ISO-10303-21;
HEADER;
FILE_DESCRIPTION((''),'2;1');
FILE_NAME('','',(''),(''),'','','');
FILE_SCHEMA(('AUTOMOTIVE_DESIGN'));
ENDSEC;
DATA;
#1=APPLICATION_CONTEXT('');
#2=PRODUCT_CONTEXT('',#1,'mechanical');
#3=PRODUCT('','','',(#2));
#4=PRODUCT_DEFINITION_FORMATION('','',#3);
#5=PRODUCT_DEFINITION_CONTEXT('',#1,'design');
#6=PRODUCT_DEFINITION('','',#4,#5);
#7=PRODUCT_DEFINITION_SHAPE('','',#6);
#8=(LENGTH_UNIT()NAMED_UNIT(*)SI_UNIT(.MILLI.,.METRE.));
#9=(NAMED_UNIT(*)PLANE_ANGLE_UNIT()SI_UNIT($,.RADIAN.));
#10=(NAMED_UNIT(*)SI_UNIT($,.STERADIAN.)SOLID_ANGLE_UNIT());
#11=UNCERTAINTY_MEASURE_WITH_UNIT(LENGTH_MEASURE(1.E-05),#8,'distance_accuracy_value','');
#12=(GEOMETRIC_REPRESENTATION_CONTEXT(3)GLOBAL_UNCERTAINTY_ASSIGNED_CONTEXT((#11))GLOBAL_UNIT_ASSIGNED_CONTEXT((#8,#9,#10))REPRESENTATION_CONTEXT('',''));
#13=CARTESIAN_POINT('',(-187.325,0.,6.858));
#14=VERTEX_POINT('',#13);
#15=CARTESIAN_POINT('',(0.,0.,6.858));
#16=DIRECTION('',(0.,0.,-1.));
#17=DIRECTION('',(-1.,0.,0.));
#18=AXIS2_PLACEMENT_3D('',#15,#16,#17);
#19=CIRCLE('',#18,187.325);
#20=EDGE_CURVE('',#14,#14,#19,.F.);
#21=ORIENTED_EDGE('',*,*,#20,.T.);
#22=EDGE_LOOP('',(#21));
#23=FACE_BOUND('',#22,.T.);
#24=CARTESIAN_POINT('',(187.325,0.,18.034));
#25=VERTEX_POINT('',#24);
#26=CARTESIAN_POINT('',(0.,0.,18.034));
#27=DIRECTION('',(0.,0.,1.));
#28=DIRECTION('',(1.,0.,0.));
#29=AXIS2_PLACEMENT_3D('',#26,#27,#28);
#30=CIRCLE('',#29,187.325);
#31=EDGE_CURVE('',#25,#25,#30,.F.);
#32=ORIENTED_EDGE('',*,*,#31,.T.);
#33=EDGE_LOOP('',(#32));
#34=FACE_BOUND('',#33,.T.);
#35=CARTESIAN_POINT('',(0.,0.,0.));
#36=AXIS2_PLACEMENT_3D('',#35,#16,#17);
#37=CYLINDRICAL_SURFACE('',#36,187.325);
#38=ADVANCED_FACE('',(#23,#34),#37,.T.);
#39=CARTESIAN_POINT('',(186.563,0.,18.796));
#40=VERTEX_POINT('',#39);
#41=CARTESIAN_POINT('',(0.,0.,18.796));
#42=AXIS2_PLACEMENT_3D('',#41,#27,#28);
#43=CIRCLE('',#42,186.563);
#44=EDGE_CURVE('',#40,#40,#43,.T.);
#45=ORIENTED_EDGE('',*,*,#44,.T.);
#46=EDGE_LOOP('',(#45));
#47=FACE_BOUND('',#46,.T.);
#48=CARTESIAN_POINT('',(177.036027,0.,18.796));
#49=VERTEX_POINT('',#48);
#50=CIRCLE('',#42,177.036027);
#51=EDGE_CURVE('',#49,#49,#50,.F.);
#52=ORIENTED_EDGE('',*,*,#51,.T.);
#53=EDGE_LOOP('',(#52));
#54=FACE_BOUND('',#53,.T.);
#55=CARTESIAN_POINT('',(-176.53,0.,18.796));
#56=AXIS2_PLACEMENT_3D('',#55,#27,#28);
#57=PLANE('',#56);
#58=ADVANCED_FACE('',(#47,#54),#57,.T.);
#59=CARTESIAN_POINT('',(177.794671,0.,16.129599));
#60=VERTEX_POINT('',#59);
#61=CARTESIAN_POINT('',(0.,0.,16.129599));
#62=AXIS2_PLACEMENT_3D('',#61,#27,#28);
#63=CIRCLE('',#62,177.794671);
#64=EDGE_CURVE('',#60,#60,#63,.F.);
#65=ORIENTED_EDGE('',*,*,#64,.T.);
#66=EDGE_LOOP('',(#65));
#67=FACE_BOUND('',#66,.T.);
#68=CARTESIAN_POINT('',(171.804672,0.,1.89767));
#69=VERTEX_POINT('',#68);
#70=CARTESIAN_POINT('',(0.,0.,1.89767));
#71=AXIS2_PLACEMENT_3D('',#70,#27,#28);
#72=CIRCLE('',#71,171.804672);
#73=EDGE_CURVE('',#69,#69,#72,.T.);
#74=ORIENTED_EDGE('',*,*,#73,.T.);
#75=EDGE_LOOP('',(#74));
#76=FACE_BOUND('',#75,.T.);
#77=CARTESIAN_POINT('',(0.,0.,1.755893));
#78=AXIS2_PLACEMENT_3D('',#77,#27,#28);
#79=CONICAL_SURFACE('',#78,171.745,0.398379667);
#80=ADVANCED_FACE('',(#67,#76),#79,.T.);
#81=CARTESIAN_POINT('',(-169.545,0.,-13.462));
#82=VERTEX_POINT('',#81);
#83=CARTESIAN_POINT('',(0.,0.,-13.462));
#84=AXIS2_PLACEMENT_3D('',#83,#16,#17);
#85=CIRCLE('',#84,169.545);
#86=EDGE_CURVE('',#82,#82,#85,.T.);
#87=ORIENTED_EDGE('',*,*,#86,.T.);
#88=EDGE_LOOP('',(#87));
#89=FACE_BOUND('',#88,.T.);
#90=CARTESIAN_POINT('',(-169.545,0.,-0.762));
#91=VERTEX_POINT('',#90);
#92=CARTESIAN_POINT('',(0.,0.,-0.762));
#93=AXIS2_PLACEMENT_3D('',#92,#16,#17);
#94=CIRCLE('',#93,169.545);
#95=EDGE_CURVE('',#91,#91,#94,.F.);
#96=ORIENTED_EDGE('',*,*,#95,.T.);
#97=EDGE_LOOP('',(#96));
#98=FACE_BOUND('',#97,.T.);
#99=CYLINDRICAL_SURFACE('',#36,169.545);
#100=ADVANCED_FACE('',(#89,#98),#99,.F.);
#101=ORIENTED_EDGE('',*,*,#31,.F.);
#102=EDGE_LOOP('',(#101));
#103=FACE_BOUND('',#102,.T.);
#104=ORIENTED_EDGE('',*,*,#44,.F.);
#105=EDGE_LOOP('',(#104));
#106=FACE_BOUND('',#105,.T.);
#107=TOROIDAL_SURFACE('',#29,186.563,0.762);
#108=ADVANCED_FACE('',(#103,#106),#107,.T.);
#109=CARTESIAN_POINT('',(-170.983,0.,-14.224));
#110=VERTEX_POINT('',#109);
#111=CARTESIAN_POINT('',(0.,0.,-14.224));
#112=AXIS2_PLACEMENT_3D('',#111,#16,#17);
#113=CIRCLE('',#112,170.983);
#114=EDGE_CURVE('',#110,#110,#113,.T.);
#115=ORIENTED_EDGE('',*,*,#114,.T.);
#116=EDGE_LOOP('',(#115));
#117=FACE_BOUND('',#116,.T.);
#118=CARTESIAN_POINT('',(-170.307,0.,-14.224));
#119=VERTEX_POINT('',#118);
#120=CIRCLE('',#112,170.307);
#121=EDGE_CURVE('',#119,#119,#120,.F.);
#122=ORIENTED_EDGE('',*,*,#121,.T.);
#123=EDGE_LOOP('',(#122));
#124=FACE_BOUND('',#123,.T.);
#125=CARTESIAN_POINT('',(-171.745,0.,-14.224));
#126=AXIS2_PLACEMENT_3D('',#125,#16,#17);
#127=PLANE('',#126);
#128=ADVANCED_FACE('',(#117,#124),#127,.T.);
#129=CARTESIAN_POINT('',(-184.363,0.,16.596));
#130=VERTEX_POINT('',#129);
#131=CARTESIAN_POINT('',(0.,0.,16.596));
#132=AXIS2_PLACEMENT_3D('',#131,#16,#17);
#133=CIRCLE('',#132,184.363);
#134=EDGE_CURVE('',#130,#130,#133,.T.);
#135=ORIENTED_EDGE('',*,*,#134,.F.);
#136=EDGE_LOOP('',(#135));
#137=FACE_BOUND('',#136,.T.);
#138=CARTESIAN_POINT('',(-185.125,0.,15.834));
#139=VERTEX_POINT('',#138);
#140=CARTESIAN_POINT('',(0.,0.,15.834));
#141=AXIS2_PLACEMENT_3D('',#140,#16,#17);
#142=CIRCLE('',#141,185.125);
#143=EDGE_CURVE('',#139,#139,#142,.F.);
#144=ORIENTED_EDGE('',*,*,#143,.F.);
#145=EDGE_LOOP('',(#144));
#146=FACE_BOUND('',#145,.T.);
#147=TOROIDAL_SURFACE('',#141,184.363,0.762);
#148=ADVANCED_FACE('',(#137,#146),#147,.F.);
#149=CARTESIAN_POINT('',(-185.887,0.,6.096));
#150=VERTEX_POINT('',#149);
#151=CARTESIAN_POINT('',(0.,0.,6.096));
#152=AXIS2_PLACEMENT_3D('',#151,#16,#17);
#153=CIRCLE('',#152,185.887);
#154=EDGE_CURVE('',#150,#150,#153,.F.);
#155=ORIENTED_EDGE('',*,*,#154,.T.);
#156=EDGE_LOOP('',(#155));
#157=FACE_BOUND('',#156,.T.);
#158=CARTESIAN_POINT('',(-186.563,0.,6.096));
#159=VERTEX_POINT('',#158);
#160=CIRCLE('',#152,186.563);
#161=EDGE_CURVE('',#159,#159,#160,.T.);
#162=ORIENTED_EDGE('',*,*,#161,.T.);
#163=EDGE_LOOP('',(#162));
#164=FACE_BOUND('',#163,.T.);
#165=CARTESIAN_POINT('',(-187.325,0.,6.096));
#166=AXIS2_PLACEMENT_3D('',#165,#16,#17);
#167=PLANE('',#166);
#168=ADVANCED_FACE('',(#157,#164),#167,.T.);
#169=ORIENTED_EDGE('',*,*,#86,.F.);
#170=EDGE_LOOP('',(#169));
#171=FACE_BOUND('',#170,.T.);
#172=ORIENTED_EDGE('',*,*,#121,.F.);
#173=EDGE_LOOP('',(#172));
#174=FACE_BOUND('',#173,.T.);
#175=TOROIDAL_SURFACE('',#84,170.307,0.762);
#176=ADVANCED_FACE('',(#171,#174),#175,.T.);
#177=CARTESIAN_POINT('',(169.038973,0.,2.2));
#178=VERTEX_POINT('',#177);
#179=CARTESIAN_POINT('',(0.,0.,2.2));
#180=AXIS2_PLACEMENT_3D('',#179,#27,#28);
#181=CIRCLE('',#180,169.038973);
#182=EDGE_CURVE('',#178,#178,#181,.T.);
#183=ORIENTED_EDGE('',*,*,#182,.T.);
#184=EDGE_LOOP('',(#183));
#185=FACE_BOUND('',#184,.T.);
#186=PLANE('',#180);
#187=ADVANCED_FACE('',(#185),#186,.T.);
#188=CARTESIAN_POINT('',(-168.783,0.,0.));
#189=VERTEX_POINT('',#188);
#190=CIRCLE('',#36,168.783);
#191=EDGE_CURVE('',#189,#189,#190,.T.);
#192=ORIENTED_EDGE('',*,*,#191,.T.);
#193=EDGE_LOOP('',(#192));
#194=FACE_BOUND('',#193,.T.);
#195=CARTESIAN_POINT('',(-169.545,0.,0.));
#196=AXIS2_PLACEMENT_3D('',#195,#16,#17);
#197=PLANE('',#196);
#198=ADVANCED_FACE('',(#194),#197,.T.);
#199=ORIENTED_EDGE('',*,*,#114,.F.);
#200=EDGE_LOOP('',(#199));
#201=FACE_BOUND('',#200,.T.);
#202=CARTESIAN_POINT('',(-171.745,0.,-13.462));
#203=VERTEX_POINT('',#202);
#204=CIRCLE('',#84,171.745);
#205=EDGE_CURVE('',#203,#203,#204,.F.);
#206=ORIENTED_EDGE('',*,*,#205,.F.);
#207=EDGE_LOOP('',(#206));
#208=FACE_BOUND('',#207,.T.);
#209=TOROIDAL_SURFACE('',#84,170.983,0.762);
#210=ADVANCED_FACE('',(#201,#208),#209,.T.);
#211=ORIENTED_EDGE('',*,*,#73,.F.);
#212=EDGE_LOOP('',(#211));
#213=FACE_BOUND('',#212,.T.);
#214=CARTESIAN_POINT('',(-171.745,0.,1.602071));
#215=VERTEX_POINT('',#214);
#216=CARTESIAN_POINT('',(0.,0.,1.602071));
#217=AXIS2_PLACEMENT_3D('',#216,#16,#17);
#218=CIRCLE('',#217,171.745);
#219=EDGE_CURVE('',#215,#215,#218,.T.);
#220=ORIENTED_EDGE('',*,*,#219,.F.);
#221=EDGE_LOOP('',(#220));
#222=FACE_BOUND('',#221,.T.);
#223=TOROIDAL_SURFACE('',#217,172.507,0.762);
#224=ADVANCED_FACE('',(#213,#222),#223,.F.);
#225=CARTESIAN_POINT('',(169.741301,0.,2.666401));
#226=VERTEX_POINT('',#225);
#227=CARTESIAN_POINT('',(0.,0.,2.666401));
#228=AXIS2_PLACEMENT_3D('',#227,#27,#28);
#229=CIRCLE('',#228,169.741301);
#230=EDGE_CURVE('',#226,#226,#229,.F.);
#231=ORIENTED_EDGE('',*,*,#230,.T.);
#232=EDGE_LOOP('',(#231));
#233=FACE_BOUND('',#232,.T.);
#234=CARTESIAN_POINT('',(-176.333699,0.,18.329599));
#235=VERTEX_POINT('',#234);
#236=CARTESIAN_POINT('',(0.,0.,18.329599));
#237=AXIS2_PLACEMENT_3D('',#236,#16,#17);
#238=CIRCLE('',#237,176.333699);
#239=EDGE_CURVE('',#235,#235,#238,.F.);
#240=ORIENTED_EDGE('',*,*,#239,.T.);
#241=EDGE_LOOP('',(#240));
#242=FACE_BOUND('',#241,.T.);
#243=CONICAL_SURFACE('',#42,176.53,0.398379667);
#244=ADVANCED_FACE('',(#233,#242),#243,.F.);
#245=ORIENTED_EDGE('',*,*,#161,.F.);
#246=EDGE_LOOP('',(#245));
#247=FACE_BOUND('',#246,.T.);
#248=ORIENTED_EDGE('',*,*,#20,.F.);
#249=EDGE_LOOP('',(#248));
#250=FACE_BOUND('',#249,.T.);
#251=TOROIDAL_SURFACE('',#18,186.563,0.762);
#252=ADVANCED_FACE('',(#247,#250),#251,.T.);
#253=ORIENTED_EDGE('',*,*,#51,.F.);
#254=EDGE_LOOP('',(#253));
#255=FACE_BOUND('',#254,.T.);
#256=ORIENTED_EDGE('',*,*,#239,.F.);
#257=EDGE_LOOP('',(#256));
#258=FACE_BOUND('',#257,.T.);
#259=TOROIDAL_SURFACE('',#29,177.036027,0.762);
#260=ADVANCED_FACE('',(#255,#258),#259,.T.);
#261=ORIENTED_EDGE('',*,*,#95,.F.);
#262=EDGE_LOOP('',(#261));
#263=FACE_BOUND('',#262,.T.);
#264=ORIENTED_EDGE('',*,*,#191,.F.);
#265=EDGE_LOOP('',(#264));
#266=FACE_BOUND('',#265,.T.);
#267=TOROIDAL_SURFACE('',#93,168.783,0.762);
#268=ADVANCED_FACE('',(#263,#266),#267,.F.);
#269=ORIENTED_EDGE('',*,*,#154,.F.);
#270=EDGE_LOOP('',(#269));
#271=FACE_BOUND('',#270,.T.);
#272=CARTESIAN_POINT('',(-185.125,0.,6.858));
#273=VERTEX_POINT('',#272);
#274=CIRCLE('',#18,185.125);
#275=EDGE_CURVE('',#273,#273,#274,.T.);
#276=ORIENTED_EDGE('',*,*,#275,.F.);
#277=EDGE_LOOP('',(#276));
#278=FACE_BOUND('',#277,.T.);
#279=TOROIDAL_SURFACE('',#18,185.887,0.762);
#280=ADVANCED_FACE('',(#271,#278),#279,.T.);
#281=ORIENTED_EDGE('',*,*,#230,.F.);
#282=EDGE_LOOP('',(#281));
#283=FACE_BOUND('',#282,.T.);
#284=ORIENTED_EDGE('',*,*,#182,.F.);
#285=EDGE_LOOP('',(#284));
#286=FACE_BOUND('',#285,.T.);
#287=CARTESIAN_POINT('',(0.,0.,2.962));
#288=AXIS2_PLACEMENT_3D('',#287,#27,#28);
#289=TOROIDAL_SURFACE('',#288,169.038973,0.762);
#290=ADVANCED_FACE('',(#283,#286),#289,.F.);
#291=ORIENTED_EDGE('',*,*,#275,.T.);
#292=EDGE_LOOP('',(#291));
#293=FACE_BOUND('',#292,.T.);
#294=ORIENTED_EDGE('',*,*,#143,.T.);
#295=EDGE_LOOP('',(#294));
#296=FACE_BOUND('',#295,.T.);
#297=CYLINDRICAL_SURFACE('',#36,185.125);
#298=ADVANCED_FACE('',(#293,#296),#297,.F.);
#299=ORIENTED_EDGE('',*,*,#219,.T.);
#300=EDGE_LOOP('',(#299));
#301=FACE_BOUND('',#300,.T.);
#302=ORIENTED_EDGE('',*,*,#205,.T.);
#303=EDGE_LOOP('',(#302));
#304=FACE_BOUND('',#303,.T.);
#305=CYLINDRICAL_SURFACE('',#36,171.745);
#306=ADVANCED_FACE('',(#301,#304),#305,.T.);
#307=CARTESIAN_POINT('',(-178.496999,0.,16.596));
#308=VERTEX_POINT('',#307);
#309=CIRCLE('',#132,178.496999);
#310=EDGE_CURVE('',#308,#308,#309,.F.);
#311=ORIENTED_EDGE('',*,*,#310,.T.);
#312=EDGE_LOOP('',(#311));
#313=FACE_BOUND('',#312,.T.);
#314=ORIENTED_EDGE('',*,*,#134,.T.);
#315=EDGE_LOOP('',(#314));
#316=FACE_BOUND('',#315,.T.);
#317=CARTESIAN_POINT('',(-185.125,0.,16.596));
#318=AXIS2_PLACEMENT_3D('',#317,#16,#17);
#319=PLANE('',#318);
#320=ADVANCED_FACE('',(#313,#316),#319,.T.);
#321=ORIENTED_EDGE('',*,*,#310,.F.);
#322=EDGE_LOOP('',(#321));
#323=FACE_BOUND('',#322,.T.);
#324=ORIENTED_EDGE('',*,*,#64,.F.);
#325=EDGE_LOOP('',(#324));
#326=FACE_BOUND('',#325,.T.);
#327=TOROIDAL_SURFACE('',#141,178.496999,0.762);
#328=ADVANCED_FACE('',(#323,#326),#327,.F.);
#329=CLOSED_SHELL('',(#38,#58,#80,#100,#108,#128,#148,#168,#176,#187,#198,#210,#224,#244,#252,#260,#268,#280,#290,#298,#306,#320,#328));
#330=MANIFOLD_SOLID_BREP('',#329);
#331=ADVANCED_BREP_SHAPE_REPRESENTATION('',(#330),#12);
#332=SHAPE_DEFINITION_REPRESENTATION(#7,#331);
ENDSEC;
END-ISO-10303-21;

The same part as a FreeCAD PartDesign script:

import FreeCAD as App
import Part
import Sketcher

V = App.Vector
Q = App.Units.Quantity


def edges_at(feature, points):
    """Names of the edges that pass closest to the given points."""
    edges = feature.Shape.Edges
    near = lambda p: min(range(len(edges)), key=lambda i: edges[i].distToShape(Part.Vertex(*p))[0])
    return sorted({f"Edge{near(p) + 1}" for p in points})

doc = App.newDocument("Part")
body = doc.addObject("PartDesign::Body", "Body")

sketch1 = doc.addObject("Sketcher::SketchObject", "Sketch")
body.addObject(sketch1)
sketch1.AttachmentSupport = (doc.XZ_Plane, [""])
sketch1.MapMode = "FlatFace"
sketch1.addGeometry([
    Part.LineSegment(V(-169.5, 2.2, 0), V(0, 2.2, 0)),
    Part.LineSegment(V(0, 2.2, 0), V(0, 0, 0)),
    Part.LineSegment(V(0, 0, 0), V(-169.5, 0, 0)),
    Part.LineSegment(V(-169.5, 0, 0), V(-169.5, -14.2, 0)),
    Part.LineSegment(V(-169.5, -14.2, 0), V(-171.7, -14.2, 0)),
    Part.LineSegment(V(-171.7, -14.2, 0), V(-171.7, 1.8, 0)),
    Part.LineSegment(V(-171.7, 1.8, 0), V(-178, 16.6, 0)),
    Part.LineSegment(V(-178, 16.6, 0), V(-185.1, 16.6, 0)),
    Part.LineSegment(V(-185.1, 16.6, 0), V(-185.1, 6.1, 0)),
    Part.LineSegment(V(-185.1, 6.1, 0), V(-187.3, 6.1, 0)),
    Part.LineSegment(V(-187.3, 6.1, 0), V(-187.3, 18.8, 0)),
    Part.LineSegment(V(-187.3, 18.8, 0), V(-176.5, 18.8, 0)),
    Part.LineSegment(V(-176.5, 18.8, 0), V(-169.5, 2.2, 0)),
], False)
sketch1.addConstraint([
    Sketcher.Constraint("Coincident", 0, 2, 1, 1),
    Sketcher.Constraint("Coincident", 1, 2, 2, 1),
    Sketcher.Constraint("Coincident", 2, 2, 3, 1),
    Sketcher.Constraint("Coincident", 3, 2, 4, 1),
    Sketcher.Constraint("Coincident", 4, 2, 5, 1),
    Sketcher.Constraint("Coincident", 5, 2, 6, 1),
    Sketcher.Constraint("Coincident", 6, 2, 7, 1),
    Sketcher.Constraint("Coincident", 7, 2, 8, 1),
    Sketcher.Constraint("Coincident", 8, 2, 9, 1),
    Sketcher.Constraint("Coincident", 9, 2, 10, 1),
    Sketcher.Constraint("Coincident", 10, 2, 11, 1),
    Sketcher.Constraint("Coincident", 11, 2, 12, 1),
    Sketcher.Constraint("Coincident", 12, 2, 0, 1),
    Sketcher.Constraint("Horizontal", 0),
    Sketcher.Constraint("Vertical", 1),
    Sketcher.Constraint("Horizontal", 2),
    Sketcher.Constraint("Vertical", 3),
    Sketcher.Constraint("Horizontal", 4),
    Sketcher.Constraint("Vertical", 5),
    Sketcher.Constraint("Horizontal", 7),
    Sketcher.Constraint("Vertical", 8),
    Sketcher.Constraint("Horizontal", 9),
    Sketcher.Constraint("Vertical", 10),
    Sketcher.Constraint("Horizontal", 11),
    Sketcher.Constraint("Coincident", 1, 2, -1, 1),
    Sketcher.Constraint("Parallel", 6, 12),
    Sketcher.Constraint("Vertical", 3, 2, 12, 2),
    Sketcher.Constraint("Equal", 4, 9),
    Sketcher.Constraint("Equal", 9, 1),
    Sketcher.Constraint("DistanceY", 10, 1, 10, 2, Q("0.5 in")),
    Sketcher.Constraint("DistanceY", 3, 2, 3, 1, Q("0.56 in")),
    Sketcher.Constraint("DistanceY", 4, 2, 8, 2, Q("0.8 in")),
    Sketcher.Constraint("DistanceX", 9, 2, 2, 2, Q("0.7 in")),
    Sketcher.Constraint("DistanceX", 0, 1, 0, 2, Q("6.675 in")),
    Sketcher.Constraint("DistanceX", 11, 1, 11, 2, Q("0.425 in")),
    Sketcher.Constraint("DistanceX", 4, 2, 4, 1, 2.2),
    Sketcher.Constraint("DistanceY", 8, 2, 8, 1, 10.5),
    Sketcher.Constraint("DistanceX", 7, 2, 7, 1, 7.134028),
])
revolution = doc.addObject("PartDesign::Revolution", "Revolution")
body.addObject(revolution)
revolution.Profile = sketch1
revolution.ReferenceAxis = (sketch1, ["V_Axis"])
revolution.Angle = 360
doc.recompute()

fillet = doc.addObject("PartDesign::Fillet", "Fillet")
body.addObject(fillet)
fillet.Base = (revolution, edges_at(revolution, [
    (169.545, 0, 0),
    (169.545, 0, -14.224),
    (171.745, 0, -14.224),
    (171.745, 0, 1.756),
    (177.991, 0, 16.596),
    (185.125, 0, 16.596),
    (185.125, 0, 6.096),
    (187.325, 0, 6.096),
    (187.325, 0, 18.796),
    (176.53, 0, 18.796),
    (169.545, 0, 2.2),
]))
fillet.Radius = Q("0.03 in")

doc.recompute()
